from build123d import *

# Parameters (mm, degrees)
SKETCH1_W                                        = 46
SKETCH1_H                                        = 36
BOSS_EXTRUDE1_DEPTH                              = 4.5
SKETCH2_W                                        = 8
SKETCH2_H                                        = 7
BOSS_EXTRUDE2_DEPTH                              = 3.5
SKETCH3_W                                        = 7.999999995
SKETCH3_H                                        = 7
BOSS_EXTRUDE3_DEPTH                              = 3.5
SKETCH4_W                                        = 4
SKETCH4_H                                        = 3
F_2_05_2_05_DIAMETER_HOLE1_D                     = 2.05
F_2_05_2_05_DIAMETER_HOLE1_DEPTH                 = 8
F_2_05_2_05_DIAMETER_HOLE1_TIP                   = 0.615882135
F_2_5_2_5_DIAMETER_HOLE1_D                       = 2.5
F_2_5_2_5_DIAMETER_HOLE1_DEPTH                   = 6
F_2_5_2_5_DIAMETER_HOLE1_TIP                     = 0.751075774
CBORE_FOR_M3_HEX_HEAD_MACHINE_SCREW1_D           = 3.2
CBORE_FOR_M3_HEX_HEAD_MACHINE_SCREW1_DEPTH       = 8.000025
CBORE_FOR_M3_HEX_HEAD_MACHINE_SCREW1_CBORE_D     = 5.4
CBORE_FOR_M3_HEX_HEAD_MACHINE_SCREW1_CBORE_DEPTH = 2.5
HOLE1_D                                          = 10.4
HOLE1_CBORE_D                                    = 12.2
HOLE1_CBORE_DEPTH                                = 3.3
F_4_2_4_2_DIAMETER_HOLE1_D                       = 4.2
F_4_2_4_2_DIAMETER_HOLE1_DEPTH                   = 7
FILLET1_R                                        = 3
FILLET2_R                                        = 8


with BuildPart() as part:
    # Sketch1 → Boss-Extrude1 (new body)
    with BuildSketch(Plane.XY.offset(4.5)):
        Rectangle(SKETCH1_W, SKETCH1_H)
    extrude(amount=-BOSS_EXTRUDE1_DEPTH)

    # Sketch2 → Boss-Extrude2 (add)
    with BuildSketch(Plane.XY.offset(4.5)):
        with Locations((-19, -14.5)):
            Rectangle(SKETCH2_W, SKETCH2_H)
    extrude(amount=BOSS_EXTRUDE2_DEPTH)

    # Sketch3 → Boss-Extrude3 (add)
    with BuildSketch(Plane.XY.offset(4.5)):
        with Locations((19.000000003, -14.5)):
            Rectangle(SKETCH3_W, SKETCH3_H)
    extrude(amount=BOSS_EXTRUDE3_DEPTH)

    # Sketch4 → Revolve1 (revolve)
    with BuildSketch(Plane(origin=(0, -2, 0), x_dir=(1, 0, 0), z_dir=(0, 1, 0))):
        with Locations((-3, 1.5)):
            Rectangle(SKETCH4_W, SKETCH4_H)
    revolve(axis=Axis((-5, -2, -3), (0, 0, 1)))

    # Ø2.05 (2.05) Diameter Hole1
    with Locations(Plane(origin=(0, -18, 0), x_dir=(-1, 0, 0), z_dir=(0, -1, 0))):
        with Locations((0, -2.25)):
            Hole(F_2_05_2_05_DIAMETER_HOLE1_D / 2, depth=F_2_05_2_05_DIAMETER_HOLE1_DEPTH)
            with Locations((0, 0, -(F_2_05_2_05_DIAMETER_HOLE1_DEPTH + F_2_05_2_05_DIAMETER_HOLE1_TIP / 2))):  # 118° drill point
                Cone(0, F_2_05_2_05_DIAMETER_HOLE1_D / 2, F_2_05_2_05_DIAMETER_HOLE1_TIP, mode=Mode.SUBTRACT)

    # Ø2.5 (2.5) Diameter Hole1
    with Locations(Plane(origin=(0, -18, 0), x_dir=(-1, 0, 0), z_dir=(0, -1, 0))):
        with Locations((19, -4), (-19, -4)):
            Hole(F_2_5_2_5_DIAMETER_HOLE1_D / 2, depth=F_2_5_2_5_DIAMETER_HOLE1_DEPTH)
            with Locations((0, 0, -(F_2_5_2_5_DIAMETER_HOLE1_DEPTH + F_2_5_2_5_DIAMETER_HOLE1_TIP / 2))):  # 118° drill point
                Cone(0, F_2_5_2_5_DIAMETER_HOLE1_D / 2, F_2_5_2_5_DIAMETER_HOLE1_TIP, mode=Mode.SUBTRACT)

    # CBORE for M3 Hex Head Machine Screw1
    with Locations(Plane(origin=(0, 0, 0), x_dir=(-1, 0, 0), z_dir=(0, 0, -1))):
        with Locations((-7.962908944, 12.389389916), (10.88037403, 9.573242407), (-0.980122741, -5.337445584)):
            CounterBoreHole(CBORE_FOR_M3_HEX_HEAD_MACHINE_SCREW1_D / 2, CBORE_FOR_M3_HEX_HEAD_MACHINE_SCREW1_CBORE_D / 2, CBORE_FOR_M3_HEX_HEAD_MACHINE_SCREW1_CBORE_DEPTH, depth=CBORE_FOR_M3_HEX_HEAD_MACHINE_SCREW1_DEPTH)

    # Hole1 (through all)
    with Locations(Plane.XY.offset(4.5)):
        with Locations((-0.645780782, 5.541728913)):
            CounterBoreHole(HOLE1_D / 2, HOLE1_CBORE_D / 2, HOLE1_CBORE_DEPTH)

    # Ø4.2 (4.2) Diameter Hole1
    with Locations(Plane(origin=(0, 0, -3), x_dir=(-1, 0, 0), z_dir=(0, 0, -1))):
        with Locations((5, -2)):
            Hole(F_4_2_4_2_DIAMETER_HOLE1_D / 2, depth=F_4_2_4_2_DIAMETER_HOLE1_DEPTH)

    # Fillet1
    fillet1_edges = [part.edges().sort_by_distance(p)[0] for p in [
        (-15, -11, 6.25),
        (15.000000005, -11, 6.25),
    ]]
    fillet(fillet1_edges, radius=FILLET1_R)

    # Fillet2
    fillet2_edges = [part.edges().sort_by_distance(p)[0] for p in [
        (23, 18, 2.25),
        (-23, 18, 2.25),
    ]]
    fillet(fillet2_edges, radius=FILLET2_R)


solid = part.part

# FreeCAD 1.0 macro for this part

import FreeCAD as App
import Part
import Sketcher
Q = App.Units.Quantity


def edges_at(feature, points):
    """Names of the edges that pass closest to the given points."""
    edges = feature.Shape.Edges
    near = lambda p: min(range(len(edges)), key=lambda i: edges[i].distToShape(Part.Vertex(*p))[0])
    return sorted({f"Edge{near(p) + 1}" for p in points})

doc = App.newDocument("Part")
body = doc.addObject("PartDesign::Body", "Body")

sketch1 = doc.addObject("Sketcher::SketchObject", "Sketch")
body.addObject(sketch1)
sketch1.AttachmentSupport = (doc.XY_Plane, [""])
sketch1.MapMode = "FlatFace"
sketch1.AttachmentOffset = App.Placement(App.Vector(0, 0, 4.5), App.Rotation())
sketch1.addGeometry([
    Part.LineSegment(App.Vector(-23, 18, 0), App.Vector(-23, -18, 0)),
    Part.LineSegment(App.Vector(-23, -18, 0), App.Vector(23, -18, 0)),
    Part.LineSegment(App.Vector(23, -18, 0), App.Vector(23, 18, 0)),
    Part.LineSegment(App.Vector(23, 18, 0), App.Vector(-23, 18, 0)),
], False)
sketch1.addConstraint([
    Sketcher.Constraint("Coincident", 0, 2, 1, 1),
    Sketcher.Constraint("Coincident", 1, 2, 2, 1),
    Sketcher.Constraint("Coincident", 2, 2, 3, 1),
    Sketcher.Constraint("Coincident", 3, 2, 0, 1),
    Sketcher.Constraint("Vertical", 0),
    Sketcher.Constraint("Horizontal", 1),
    Sketcher.Constraint("Vertical", 2),
    Sketcher.Constraint("Horizontal", 3),
    Sketcher.Constraint("Symmetric", 0, 2, 2, 2, -1, 1),
    Sketcher.Constraint("DistanceX", 1, 1, 1, 2, Q("46 mm")),
    Sketcher.Constraint("DistanceY", 0, 2, 0, 1, Q("36 mm")),
])
pad1 = doc.addObject("PartDesign::Pad", "Pad")
body.addObject(pad1)
pad1.Profile = sketch1
pad1.Length = 4.5
pad1.Reversed = True

sketch2 = doc.addObject("Sketcher::SketchObject", "Sketch001")
body.addObject(sketch2)
sketch2.AttachmentSupport = (doc.XY_Plane, [""])
sketch2.MapMode = "FlatFace"
sketch2.AttachmentOffset = App.Placement(App.Vector(0, 0, 4.5), App.Rotation())
sketch2.addGeometry([
    Part.LineSegment(App.Vector(-23, -11, 0), App.Vector(-23, -18, 0)),
    Part.LineSegment(App.Vector(-23, -18, 0), App.Vector(-15, -18, 0)),
    Part.LineSegment(App.Vector(-15, -18, 0), App.Vector(-15, -11, 0)),
    Part.LineSegment(App.Vector(-15, -11, 0), App.Vector(-23, -11, 0)),
], False)
sketch2.addConstraint([
    Sketcher.Constraint("Coincident", 0, 2, 1, 1),
    Sketcher.Constraint("Coincident", 1, 2, 2, 1),
    Sketcher.Constraint("Coincident", 2, 2, 3, 1),
    Sketcher.Constraint("Coincident", 3, 2, 0, 1),
    Sketcher.Constraint("Vertical", 0),
    Sketcher.Constraint("Horizontal", 1),
    Sketcher.Constraint("Vertical", 2),
    Sketcher.Constraint("Horizontal", 3),
    Sketcher.Constraint("DistanceX", 1, 1, 1, 2, Q("8 mm")),
    Sketcher.Constraint("DistanceY", 0, 2, 0, 1, Q("7 mm")),
    Sketcher.Constraint("DistanceX", 0, 2, -1, 1, Q("23 mm")),
    Sketcher.Constraint("DistanceY", 0, 2, -1, 1, Q("18 mm")),
])
pad2 = doc.addObject("PartDesign::Pad", "Pad001")
body.addObject(pad2)
pad2.Profile = sketch2
pad2.Length = 3.5

sketch3 = doc.addObject("Sketcher::SketchObject", "Sketch002")
body.addObject(sketch3)
sketch3.AttachmentSupport = (doc.XY_Plane, [""])
sketch3.MapMode = "FlatFace"
sketch3.AttachmentOffset = App.Placement(App.Vector(0, 0, 4.5), App.Rotation())
sketch3.addGeometry([
    Part.LineSegment(App.Vector(15, -11, 0), App.Vector(15, -18, 0)),
    Part.LineSegment(App.Vector(15, -18, 0), App.Vector(23, -18, 0)),
    Part.LineSegment(App.Vector(23, -18, 0), App.Vector(23, -11, 0)),
    Part.LineSegment(App.Vector(23, -11, 0), App.Vector(15, -11, 0)),
], False)
sketch3.addConstraint([
    Sketcher.Constraint("Coincident", 0, 2, 1, 1),
    Sketcher.Constraint("Coincident", 1, 2, 2, 1),
    Sketcher.Constraint("Coincident", 2, 2, 3, 1),
    Sketcher.Constraint("Coincident", 3, 2, 0, 1),
    Sketcher.Constraint("Vertical", 0),
    Sketcher.Constraint("Horizontal", 1),
    Sketcher.Constraint("Vertical", 2),
    Sketcher.Constraint("Horizontal", 3),
    Sketcher.Constraint("DistanceX", 1, 1, 1, 2, Q("8 mm")),
    Sketcher.Constraint("DistanceY", 0, 2, 0, 1, Q("7 mm")),
    Sketcher.Constraint("DistanceX", -1, 1, 0, 2, Q("15 mm")),
    Sketcher.Constraint("DistanceY", 0, 2, -1, 1, Q("18 mm")),
])
pad3 = doc.addObject("PartDesign::Pad", "Pad002")
body.addObject(pad3)
pad3.Profile = sketch3
pad3.Length = 3.5

sketch4 = doc.addObject("Sketcher::SketchObject", "Sketch003")
body.addObject(sketch4)
sketch4.AttachmentSupport = (doc.XZ_Plane, [""])
sketch4.MapMode = "FlatFace"
sketch4.AttachmentOffset = App.Placement(App.Vector(0, 0, 2), App.Rotation())
sketch4.addGeometry([
    Part.LineSegment(App.Vector(-5, -3, 0), App.Vector(-5, 0, 0)),
    Part.LineSegment(App.Vector(-5, 0, 0), App.Vector(-1, 0, 0)),
    Part.LineSegment(App.Vector(-1, 0, 0), App.Vector(-1, -3, 0)),
    Part.LineSegment(App.Vector(-1, -3, 0), App.Vector(-5, -3, 0)),
], False)
sketch4.addGeometry(Part.LineSegment(App.Vector(-5, -3, 0), App.Vector(-5, 0, 0)), True)
sketch4.addConstraint([
    Sketcher.Constraint("Coincident", 0, 2, 1, 1),
    Sketcher.Constraint("Coincident", 1, 2, 2, 1),
    Sketcher.Constraint("Coincident", 2, 2, 3, 1),
    Sketcher.Constraint("Coincident", 3, 2, 0, 1),
    Sketcher.Constraint("Vertical", 0),
    Sketcher.Constraint("Horizontal", 1),
    Sketcher.Constraint("Vertical", 2),
    Sketcher.Constraint("Horizontal", 3),
    Sketcher.Constraint("Vertical", 4),
    Sketcher.Constraint("Coincident", 4, 1, 3, 2),
    Sketcher.Constraint("PointOnObject", 0, 2, -1),
    Sketcher.Constraint("PointOnObject", 4, 2, -1),
    Sketcher.Constraint("DistanceX", 1, 1, 1, 2, Q("4 mm")),
    Sketcher.Constraint("DistanceY", 0, 1, 0, 2, Q("3 mm")),
    Sketcher.Constraint("DistanceX", 0, 2, -1, 1, Q("5 mm")),
])
revolution = doc.addObject("PartDesign::Revolution", "Revolution")
body.addObject(revolution)
revolution.Profile = sketch4
revolution.ReferenceAxis = (sketch4, ["Axis0"])
revolution.Angle = 360

sketch5 = doc.addObject("Sketcher::SketchObject", "Sketch004")
body.addObject(sketch5)
sketch5.AttachmentSupport = (doc.XZ_Plane, [""])
sketch5.MapMode = "FlatFace"
sketch5.AttachmentOffset = App.Placement(App.Vector(0, 0, 18), App.Rotation())
sketch5.addGeometry(Part.Circle(App.Vector(0, 2.2, 0), App.Vector(0, 0, 1), 1), False)
sketch5.addConstraint([
    Sketcher.Constraint("PointOnObject", 0, 3, -2),
    Sketcher.Constraint("Diameter", 0, Q("2.05 mm")),
    Sketcher.Constraint("DistanceY", -1, 1, 0, 3, Q("2.25 mm")),
])
doc.recompute()
hole = doc.addObject("PartDesign::Hole", "Hole")
body.addObject(hole)
hole.Profile = sketch5
hole.ThreadType = "None"
hole.Diameter = 2.05
hole.DepthType = "Dimension"
hole.Depth = 8
hole.DrillPoint = "Angled"
hole.DrillPointAngle = 118

sketch6 = doc.addObject("Sketcher::SketchObject", "Sketch005")
body.addObject(sketch6)
sketch6.AttachmentSupport = (doc.XZ_Plane, [""])
sketch6.MapMode = "FlatFace"
sketch6.AttachmentOffset = App.Placement(App.Vector(0, 0, 18), App.Rotation())
sketch6.addGeometry([
    Part.Circle(App.Vector(-19, 4, 0), App.Vector(0, 0, 1), 1.2),
    Part.Circle(App.Vector(19, 4, 0), App.Vector(0, 0, 1), 1.2),
], False)
sketch6.addConstraint([
    Sketcher.Constraint("Equal", 0, 1),
    Sketcher.Constraint("Symmetric", 0, 3, 1, 3, -2),
    Sketcher.Constraint("Diameter", 0, Q("2.5 mm")),
    Sketcher.Constraint("DistanceX", 0, 3, -1, 1, Q("19 mm")),
    Sketcher.Constraint("DistanceY", -1, 1, 0, 3, Q("4 mm")),
])
doc.recompute()
hole2 = doc.addObject("PartDesign::Hole", "Hole001")
body.addObject(hole2)
hole2.Profile = sketch6
hole2.ThreadType = "None"
hole2.Diameter = 2.5
hole2.DepthType = "Dimension"
hole2.Depth = 6
hole2.DrillPoint = "Angled"
hole2.DrillPointAngle = 118

sketch7 = doc.addObject("Sketcher::SketchObject", "Sketch006")
body.addObject(sketch7)
sketch7.AttachmentSupport = (doc.XY_Plane, [""])
sketch7.MapMode = "FlatFace"
sketch7.addGeometry([
    Part.Circle(App.Vector(8, 12.4, 0), App.Vector(0, 0, 1), 1.6),
    Part.Circle(App.Vector(-10.9, 9.6, 0), App.Vector(0, 0, 1), 1.6),
    Part.Circle(App.Vector(1, -5.3, 0), App.Vector(0, 0, 1), 1.6),
], False)
sketch7.addConstraint([
    Sketcher.Constraint("Equal", 0, 1),
    Sketcher.Constraint("Equal", 1, 2),
    Sketcher.Constraint("Diameter", 0, Q("3.2 mm")),
    Sketcher.Constraint("DistanceX", -1, 1, 0, 3, Q("7.962909 mm")),
    Sketcher.Constraint("DistanceY", -1, 1, 0, 3, Q("12.38939 mm")),
    Sketcher.Constraint("DistanceX", 1, 3, -1, 1, Q("10.880374 mm")),
    Sketcher.Constraint("DistanceY", -1, 1, 1, 3, Q("9.573242 mm")),
    Sketcher.Constraint("DistanceX", -1, 1, 2, 3, Q("0.980123 mm")),
    Sketcher.Constraint("DistanceY", 2, 3, -1, 1, Q("5.337446 mm")),
])
doc.recompute()
hole3 = doc.addObject("PartDesign::Hole", "Hole002")
body.addObject(hole3)
hole3.Profile = sketch7
hole3.ThreadType = "None"
hole3.Diameter = 3.2
hole3.DepthType = "Dimension"
hole3.Depth = 8.000025
hole3.DrillPoint = "Flat"
hole3.HoleCutType = "Counterbore"
hole3.HoleCutDiameter = 5.4
hole3.HoleCutDepth = 2.5
hole3.Reversed = True

sketch8 = doc.addObject("Sketcher::SketchObject", "Sketch007")
body.addObject(sketch8)
sketch8.AttachmentSupport = (doc.XY_Plane, [""])
sketch8.MapMode = "FlatFace"
sketch8.AttachmentOffset = App.Placement(App.Vector(0, 0, 4.5), App.Rotation())
sketch8.addGeometry(Part.Circle(App.Vector(-1, 6, 0), App.Vector(0, 0, 1), 5), False)
sketch8.addConstraint([
    Sketcher.Constraint("Diameter", 0, Q("10.4 mm")),
    Sketcher.Constraint("DistanceX", 0, 3, -1, 1, Q("0.645781 mm")),
    Sketcher.Constraint("DistanceY", -1, 1, 0, 3, Q("5.541729 mm")),
])
doc.recompute()
hole4 = doc.addObject("PartDesign::Hole", "Hole003")
body.addObject(hole4)
hole4.Profile = sketch8
hole4.ThreadType = "None"
hole4.Diameter = 10.4
hole4.DepthType = "ThroughAll"
hole4.HoleCutType = "Counterbore"
hole4.HoleCutDiameter = 12.2
hole4.HoleCutDepth = 3.3

sketch9 = doc.addObject("Sketcher::SketchObject", "Sketch008")
body.addObject(sketch9)
sketch9.AttachmentSupport = (doc.XY_Plane, [""])
sketch9.MapMode = "FlatFace"
sketch9.AttachmentOffset = App.Placement(App.Vector(0, 0, -3), App.Rotation())
sketch9.addGeometry(Part.Circle(App.Vector(-5, -2, 0), App.Vector(0, 0, 1), 2.1), False)
sketch9.addConstraint([
    Sketcher.Constraint("Diameter", 0, Q("4.2 mm")),
    Sketcher.Constraint("DistanceX", 0, 3, -1, 1, Q("5 mm")),
    Sketcher.Constraint("DistanceY", 0, 3, -1, 1, Q("2 mm")),
])
doc.recompute()
hole5 = doc.addObject("PartDesign::Hole", "Hole004")
body.addObject(hole5)
hole5.Profile = sketch9
hole5.ThreadType = "None"
hole5.Diameter = 4.2
hole5.DepthType = "Dimension"
hole5.Depth = 7
hole5.DrillPoint = "Flat"
hole5.Reversed = True
doc.recompute()

fillet = doc.addObject("PartDesign::Fillet", "Fillet")
body.addObject(fillet)
fillet.Base = (hole5, edges_at(hole5, [(-15, -11, 6.25), (15, -11, 6.25)]))
fillet.Radius = 3
doc.recompute()

fillet2 = doc.addObject("PartDesign::Fillet", "Fillet001")
body.addObject(fillet2)
fillet2.Base = (fillet, edges_at(fillet, [(23, 18, 2.25), (-23, 18, 2.25)]))
fillet2.Radius = 8

doc.recompute()
